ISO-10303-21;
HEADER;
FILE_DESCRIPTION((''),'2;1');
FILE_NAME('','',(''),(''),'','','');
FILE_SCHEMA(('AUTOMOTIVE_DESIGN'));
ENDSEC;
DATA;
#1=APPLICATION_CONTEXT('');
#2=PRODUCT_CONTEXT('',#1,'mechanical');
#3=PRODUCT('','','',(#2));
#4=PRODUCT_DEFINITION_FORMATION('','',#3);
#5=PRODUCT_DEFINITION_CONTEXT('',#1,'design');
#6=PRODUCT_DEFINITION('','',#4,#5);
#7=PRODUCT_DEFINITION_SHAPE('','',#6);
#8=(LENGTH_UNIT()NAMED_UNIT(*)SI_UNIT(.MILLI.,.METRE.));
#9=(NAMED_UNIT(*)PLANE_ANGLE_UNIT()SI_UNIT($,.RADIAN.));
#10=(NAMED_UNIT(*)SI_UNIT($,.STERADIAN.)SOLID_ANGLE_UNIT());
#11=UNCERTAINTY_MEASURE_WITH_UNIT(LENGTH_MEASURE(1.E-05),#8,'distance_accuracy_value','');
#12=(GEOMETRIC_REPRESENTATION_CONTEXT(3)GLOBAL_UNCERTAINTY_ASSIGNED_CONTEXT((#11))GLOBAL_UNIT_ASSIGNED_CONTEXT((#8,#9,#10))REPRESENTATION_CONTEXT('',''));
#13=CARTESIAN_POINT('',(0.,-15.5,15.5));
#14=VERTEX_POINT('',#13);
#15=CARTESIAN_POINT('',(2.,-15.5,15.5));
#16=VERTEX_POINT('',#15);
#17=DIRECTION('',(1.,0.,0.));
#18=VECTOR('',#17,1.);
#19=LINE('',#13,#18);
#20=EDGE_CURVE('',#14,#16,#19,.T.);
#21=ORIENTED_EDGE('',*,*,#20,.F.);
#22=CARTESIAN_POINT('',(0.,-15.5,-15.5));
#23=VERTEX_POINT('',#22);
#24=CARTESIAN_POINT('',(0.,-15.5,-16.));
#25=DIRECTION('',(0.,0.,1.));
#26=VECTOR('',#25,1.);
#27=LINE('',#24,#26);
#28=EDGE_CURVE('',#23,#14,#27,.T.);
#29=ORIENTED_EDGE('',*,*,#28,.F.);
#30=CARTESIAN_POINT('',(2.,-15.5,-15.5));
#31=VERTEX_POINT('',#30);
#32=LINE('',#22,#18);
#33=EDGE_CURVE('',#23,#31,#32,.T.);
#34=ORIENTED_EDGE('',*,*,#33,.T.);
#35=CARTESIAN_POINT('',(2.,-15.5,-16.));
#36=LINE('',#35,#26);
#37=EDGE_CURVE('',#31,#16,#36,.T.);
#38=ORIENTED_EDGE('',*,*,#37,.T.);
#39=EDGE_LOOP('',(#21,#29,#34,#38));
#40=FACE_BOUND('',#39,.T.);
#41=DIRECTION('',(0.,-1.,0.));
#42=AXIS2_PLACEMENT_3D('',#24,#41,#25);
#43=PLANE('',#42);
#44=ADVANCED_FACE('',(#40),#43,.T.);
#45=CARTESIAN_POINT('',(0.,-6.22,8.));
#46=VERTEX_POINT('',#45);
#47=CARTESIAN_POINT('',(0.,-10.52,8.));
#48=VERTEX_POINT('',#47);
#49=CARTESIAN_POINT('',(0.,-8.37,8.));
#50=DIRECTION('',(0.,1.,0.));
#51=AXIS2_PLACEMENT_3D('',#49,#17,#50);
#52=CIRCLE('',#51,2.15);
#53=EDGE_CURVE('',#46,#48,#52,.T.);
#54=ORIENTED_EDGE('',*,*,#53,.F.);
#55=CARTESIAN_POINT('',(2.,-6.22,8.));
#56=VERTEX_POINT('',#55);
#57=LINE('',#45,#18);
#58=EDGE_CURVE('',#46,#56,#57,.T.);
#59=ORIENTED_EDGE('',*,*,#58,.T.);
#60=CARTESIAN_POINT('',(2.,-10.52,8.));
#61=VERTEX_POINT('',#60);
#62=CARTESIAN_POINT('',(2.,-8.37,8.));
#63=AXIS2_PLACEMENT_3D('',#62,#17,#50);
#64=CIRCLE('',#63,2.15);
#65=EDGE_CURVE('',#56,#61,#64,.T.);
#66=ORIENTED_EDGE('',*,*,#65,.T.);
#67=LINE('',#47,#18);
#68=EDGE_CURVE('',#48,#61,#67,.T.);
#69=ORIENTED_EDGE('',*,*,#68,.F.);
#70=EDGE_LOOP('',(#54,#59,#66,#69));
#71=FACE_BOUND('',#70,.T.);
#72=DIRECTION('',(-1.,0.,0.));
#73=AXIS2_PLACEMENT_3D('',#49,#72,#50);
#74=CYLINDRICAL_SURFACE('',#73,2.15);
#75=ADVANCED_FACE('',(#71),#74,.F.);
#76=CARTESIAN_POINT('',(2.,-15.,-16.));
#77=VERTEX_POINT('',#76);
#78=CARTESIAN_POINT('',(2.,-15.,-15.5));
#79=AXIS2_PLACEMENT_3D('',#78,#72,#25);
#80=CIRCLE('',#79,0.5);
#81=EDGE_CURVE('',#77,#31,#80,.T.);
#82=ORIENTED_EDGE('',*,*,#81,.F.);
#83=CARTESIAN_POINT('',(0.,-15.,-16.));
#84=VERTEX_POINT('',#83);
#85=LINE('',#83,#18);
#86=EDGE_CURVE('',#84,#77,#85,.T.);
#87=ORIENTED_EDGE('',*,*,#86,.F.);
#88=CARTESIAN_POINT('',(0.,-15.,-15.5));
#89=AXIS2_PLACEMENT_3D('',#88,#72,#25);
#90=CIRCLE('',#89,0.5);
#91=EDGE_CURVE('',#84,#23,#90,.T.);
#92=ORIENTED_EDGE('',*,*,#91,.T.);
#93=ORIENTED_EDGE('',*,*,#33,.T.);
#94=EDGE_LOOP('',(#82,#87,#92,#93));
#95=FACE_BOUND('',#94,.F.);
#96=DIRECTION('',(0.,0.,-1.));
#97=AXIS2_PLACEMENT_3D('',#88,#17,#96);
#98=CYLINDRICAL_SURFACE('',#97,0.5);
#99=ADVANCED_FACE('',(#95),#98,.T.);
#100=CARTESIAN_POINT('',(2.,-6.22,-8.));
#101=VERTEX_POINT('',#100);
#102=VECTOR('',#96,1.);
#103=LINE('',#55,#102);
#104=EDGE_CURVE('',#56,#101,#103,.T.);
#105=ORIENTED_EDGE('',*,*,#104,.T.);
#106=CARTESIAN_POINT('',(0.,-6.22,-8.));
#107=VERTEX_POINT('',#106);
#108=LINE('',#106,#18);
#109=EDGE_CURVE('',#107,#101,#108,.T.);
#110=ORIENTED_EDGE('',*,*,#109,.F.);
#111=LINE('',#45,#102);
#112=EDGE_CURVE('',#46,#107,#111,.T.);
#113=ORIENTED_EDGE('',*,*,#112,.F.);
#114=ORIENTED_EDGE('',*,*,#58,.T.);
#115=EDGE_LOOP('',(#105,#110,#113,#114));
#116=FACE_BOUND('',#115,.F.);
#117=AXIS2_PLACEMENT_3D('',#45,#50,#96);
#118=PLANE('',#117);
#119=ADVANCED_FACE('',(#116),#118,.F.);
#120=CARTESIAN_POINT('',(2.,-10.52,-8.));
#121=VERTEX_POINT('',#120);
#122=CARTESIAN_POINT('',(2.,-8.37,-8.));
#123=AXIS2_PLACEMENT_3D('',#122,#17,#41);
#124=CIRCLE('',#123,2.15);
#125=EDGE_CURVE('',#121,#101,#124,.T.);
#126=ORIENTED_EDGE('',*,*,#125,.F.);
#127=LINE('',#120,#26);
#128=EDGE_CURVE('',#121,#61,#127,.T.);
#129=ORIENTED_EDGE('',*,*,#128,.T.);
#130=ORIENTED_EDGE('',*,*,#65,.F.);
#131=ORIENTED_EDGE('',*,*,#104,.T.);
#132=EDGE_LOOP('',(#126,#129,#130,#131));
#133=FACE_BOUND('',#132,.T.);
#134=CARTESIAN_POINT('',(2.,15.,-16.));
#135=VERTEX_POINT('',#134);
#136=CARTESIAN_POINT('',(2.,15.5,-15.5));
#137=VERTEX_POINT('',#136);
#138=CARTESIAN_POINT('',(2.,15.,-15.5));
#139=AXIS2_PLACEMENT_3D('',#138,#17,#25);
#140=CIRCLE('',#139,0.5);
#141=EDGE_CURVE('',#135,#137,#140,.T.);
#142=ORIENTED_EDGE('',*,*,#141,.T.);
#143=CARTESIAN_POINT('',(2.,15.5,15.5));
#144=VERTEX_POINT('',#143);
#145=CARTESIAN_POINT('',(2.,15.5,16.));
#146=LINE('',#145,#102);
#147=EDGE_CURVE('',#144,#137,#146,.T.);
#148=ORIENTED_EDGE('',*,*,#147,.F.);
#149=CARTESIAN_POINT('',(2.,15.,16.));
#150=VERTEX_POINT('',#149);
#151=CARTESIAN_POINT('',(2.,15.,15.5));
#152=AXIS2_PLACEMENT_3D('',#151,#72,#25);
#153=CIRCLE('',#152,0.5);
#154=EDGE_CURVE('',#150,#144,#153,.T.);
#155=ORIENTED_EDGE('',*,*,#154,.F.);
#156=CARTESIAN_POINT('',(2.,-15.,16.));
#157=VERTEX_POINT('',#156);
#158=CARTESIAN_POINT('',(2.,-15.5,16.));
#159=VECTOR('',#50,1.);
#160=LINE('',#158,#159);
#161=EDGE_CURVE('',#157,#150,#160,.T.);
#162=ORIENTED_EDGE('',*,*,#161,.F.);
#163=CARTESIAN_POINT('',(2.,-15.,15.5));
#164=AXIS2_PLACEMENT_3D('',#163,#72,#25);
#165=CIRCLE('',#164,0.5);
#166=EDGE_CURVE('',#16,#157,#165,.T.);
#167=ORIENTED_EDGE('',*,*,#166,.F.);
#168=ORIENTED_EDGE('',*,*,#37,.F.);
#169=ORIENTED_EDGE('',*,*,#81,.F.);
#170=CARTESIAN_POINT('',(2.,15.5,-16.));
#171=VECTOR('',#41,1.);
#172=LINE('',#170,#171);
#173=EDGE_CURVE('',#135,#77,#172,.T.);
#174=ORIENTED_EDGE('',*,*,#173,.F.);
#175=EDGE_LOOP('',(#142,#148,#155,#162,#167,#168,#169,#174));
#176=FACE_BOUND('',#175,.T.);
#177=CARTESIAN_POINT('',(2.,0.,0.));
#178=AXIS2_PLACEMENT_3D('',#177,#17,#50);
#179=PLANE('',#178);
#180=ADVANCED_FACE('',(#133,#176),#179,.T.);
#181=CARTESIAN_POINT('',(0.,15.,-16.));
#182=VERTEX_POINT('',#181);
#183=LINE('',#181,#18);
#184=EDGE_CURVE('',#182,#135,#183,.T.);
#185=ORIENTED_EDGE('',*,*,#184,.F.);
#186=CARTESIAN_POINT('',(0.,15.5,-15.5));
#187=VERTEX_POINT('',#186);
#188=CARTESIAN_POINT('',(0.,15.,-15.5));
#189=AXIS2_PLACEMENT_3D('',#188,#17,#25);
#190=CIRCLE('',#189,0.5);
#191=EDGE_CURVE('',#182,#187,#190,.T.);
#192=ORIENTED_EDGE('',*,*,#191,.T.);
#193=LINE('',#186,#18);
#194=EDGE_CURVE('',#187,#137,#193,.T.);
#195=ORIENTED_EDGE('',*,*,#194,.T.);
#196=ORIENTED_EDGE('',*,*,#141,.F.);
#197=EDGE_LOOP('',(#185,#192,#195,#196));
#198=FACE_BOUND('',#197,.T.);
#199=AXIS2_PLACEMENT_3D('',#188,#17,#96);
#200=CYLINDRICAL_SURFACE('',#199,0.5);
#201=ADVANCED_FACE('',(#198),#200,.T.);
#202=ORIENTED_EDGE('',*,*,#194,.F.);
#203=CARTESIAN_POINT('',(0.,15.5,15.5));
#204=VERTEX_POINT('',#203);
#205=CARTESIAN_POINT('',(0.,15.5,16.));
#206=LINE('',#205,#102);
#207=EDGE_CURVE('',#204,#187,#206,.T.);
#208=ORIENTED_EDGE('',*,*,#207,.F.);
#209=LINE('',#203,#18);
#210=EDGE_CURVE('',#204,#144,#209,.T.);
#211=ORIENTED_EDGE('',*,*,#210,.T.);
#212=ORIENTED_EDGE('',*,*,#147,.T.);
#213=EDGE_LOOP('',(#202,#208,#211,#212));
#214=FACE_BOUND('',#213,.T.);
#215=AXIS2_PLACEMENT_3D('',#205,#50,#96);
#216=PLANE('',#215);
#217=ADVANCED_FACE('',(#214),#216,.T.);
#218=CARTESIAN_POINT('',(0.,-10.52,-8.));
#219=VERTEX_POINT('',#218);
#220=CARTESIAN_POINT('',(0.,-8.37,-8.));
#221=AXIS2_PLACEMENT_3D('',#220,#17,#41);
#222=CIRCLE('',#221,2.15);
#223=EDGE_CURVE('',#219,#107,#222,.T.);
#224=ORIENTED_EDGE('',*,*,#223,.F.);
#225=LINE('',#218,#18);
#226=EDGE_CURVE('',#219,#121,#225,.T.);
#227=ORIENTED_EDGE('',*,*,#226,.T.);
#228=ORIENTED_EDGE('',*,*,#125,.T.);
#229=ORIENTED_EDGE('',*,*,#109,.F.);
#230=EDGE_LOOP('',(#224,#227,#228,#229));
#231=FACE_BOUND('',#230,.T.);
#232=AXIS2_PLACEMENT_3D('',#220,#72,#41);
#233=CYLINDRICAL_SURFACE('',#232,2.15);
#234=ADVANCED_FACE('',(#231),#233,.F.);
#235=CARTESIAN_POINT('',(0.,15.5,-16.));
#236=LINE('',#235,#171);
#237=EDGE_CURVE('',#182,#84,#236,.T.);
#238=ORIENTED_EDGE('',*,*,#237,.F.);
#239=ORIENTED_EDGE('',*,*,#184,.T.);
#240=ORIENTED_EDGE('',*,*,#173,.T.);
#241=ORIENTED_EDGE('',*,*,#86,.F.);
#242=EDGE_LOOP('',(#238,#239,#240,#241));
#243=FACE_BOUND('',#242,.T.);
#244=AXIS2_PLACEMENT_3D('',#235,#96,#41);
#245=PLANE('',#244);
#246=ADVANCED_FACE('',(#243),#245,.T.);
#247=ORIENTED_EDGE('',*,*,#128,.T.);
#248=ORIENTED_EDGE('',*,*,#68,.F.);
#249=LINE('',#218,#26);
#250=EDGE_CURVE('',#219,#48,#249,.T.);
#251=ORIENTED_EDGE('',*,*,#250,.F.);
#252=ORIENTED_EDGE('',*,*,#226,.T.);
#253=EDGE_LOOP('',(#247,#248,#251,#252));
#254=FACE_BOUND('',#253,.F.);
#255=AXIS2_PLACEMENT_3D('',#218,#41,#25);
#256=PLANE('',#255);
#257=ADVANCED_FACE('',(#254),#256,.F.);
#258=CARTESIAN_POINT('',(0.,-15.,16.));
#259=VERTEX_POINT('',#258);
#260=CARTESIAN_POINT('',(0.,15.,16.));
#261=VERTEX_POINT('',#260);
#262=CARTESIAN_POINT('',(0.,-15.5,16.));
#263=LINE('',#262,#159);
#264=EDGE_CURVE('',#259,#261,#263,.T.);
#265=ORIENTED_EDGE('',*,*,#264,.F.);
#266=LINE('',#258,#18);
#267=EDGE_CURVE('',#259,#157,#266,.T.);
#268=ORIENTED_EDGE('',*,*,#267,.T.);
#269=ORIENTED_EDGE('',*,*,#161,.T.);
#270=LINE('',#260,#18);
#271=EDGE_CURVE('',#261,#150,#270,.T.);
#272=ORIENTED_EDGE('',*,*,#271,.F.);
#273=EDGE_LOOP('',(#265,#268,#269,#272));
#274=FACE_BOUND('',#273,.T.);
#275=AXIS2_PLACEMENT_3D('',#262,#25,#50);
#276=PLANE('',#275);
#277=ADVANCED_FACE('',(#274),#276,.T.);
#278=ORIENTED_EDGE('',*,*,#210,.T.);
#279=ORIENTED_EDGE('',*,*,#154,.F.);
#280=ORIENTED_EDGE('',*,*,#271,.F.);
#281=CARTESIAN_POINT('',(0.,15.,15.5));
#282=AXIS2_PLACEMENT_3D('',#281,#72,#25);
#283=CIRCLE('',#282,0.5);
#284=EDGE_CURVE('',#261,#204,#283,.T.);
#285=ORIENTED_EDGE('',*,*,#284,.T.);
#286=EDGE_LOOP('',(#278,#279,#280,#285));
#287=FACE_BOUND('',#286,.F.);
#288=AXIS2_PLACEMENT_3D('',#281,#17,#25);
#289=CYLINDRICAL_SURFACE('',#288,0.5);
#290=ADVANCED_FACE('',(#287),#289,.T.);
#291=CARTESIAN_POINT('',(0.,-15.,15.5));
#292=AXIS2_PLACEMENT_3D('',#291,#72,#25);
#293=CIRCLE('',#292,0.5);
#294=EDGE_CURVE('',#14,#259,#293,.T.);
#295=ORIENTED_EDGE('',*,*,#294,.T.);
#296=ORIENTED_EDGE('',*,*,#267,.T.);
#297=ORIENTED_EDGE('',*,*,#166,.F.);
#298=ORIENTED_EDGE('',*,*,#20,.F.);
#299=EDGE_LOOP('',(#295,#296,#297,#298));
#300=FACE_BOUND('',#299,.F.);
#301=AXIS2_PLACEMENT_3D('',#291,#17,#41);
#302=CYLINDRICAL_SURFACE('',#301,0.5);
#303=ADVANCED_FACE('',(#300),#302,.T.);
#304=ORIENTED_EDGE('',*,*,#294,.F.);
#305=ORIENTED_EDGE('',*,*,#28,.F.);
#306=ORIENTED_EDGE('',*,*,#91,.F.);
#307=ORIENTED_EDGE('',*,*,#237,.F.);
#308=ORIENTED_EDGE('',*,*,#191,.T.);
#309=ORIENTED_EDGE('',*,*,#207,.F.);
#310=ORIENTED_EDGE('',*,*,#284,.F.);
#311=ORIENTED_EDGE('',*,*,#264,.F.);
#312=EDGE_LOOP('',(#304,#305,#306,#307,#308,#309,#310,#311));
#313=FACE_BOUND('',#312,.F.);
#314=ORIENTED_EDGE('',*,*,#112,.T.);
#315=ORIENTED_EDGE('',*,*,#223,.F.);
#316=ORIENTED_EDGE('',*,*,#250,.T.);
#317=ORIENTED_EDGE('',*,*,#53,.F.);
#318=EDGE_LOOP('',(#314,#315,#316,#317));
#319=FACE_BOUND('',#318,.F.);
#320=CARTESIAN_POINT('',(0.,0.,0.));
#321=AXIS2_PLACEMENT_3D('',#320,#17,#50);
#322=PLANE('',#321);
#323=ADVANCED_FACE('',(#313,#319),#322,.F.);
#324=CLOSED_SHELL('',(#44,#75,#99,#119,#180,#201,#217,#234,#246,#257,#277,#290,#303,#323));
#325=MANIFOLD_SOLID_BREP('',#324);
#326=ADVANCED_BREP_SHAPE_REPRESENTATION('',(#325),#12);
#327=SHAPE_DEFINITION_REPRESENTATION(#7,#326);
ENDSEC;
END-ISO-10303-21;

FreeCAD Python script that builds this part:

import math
import FreeCAD as App
import Part
import Sketcher

V = App.Vector
Q = App.Units.Quantity


def edges_at(feature, points):
    """Names of the edges that pass closest to the given points."""
    edges = feature.Shape.Edges
    near = lambda p: min(range(len(edges)), key=lambda i: edges[i].distToShape(Part.Vertex(*p))[0])
    return sorted({f"Edge{near(p) + 1}" for p in points})

doc = App.newDocument("Part")
body = doc.addObject("PartDesign::Body", "Body")

sketch1 = body.newObject("Sketcher::SketchObject", "Sketch")
sketch1.AttachmentSupport = (doc.getObject("YZ_Plane"), [""])
sketch1.MapMode = "FlatFace"
sketch1.addGeometry(Part.LineSegment(V(-15.5, -16, 0), V(15.5, -16, 0)), False)
sketch1.addGeometry(Part.LineSegment(V(15.5, -16, 0), V(15.5, 16, 0)), False)
sketch1.addGeometry(Part.LineSegment(V(15.5, 16, 0), V(-15.5, 16, 0)), False)
sketch1.addGeometry(Part.LineSegment(V(-15.5, 16, 0), V(-15.5, -16, 0)), False)
sketch1.addGeometry(Part.ArcOfCircle(Part.Circle(V(-8.4, 8, 0), V(0, 0, 1), 2.1), math.radians(0), math.radians(180)), False)
sketch1.addGeometry(Part.LineSegment(V(-6.2, 8, 0), V(-6.2, -8, 0)), False)
sketch1.addGeometry(Part.ArcOfCircle(Part.Circle(V(-8.4, -8, 0), V(0, 0, 1), 2.2), math.radians(180), math.radians(360)), False)
sketch1.addGeometry(Part.LineSegment(V(-10.5, -8, 0), V(-10.5, 8, 0)), False)
sketch1.addConstraint(Sketcher.Constraint("Coincident", 0, 2, 1, 1))
sketch1.addConstraint(Sketcher.Constraint("Coincident", 1, 2, 2, 1))
sketch1.addConstraint(Sketcher.Constraint("Coincident", 2, 2, 3, 1))
sketch1.addConstraint(Sketcher.Constraint("Coincident", 3, 2, 0, 1))
sketch1.addConstraint(Sketcher.Constraint("Tangent", 4, 1, 5, 1))
sketch1.addConstraint(Sketcher.Constraint("Tangent", 5, 2, 6, 2))
sketch1.addConstraint(Sketcher.Constraint("Tangent", 6, 1, 7, 1))
sketch1.addConstraint(Sketcher.Constraint("Tangent", 7, 2, 4, 2))
sketch1.addConstraint(Sketcher.Constraint("Horizontal", 0))
sketch1.addConstraint(Sketcher.Constraint("Vertical", 1))
sketch1.addConstraint(Sketcher.Constraint("Horizontal", 2))
sketch1.addConstraint(Sketcher.Constraint("Vertical", 3))
sketch1.addConstraint(Sketcher.Constraint("Vertical", 5))
sketch1.addConstraint(Sketcher.Constraint("Vertical", 7))
sketch1.addConstraint(Sketcher.Constraint("Symmetric", 0, 2, 2, 2, -1, 1))
sketch1.addConstraint(Sketcher.Constraint("DistanceX", 0, 1, 0, 2, Q("31 mm")))
sketch1.addConstraint(Sketcher.Constraint("DistanceY", 1, 1, 1, 2, Q("32 mm")))
sketch1.addConstraint(Sketcher.Constraint("DistanceY", 5, 2, 5, 1, Q("16 mm")))
sketch1.addConstraint(Sketcher.Constraint("Radius", 4, Q("2.15 mm")))
sketch1.addConstraint(Sketcher.Constraint("DistanceX", 2, 2, 4, 3, Q("7.13 mm")))
sketch1.addConstraint(Sketcher.Constraint("DistanceY", -1, 1, 4, 3, Q("8 mm")))
pad1 = body.newObject("PartDesign::Pad", "Pad")
pad1.Profile = sketch1
pad1.Length = 2
doc.recompute()

fillet = body.newObject("PartDesign::Fillet", "Fillet")
fillet.Base = (pad1, edges_at(pad1, [
    (1, 15.5, 16),
    (1, -15.5, 16),
    (1, -15.5, -16),
    (1, 15.5, -16),
]))
fillet.Radius = 0.5

doc.recompute()
